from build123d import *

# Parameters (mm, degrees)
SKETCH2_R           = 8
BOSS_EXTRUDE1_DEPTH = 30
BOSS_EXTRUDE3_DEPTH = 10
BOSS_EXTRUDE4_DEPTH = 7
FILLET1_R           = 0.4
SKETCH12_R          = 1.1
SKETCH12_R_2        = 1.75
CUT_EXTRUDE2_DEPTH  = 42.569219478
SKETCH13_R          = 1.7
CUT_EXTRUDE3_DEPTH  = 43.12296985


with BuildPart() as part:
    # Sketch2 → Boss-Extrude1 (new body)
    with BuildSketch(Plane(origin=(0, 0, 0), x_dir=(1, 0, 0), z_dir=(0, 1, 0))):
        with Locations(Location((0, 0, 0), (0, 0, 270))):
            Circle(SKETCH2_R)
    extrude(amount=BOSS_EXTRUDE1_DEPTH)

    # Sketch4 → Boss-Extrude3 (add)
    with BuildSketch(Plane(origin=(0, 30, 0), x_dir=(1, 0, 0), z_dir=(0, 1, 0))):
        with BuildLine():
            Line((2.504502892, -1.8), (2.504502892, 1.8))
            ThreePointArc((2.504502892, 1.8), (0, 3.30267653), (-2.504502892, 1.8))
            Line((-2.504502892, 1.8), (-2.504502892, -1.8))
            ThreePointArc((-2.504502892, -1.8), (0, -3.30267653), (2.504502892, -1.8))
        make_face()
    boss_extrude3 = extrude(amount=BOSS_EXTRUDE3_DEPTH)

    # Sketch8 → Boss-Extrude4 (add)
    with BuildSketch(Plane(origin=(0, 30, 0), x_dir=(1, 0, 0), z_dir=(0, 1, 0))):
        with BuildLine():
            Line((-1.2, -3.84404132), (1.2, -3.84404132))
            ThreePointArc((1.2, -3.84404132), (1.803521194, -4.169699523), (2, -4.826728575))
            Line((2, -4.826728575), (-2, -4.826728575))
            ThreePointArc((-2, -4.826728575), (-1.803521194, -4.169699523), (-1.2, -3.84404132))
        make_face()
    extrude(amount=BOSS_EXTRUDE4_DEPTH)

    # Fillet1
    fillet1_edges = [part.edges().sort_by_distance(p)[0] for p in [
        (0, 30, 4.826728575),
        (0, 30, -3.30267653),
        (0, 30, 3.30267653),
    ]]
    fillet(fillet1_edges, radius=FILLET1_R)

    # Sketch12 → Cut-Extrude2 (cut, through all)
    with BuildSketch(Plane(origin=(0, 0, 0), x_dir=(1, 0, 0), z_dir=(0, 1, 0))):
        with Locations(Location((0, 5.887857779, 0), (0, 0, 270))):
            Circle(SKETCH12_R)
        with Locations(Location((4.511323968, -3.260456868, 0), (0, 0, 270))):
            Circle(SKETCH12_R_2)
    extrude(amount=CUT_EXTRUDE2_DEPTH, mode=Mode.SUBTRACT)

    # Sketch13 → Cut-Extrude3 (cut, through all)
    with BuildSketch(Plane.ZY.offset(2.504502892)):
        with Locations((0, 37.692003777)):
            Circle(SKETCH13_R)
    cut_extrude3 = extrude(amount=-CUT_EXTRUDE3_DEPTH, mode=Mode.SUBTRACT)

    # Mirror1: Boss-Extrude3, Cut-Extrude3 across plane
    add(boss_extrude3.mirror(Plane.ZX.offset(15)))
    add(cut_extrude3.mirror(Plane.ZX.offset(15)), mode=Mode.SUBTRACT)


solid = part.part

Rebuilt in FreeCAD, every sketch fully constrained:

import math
import FreeCAD as App
import Part
import Sketcher
Q = App.Units.Quantity


def edges_at(feature, points):
    """Names of the edges that pass closest to the given points."""
    edges = feature.Shape.Edges
    near = lambda p: min(range(len(edges)), key=lambda i: edges[i].distToShape(Part.Vertex(*p))[0])
    return sorted({f"Edge{near(p) + 1}" for p in points})

doc = App.newDocument("Part")
body = doc.addObject("PartDesign::Body", "Body")

sketch1 = doc.addObject("Sketcher::SketchObject", "Sketch")
body.addObject(sketch1)
sketch1.AttachmentSupport = (doc.XZ_Plane, [""])
sketch1.MapMode = "FlatFace"
sketch1.addGeometry(Part.Circle(App.Vector(0, 0, 0), App.Vector(0, 0, 1), 8), False)
sketch1.addConstraint([
    Sketcher.Constraint("Coincident", 0, 3, -1, 1),
    Sketcher.Constraint("Diameter", 0, Q("16 mm")),
])
pad1 = doc.addObject("PartDesign::Pad", "Pad")
body.addObject(pad1)
pad1.Profile = sketch1
pad1.Length = 30
pad1.Reversed = True

sketch2 = doc.addObject("Sketcher::SketchObject", "Sketch001")
body.addObject(sketch2)
sketch2.AttachmentSupport = (doc.XZ_Plane, [""])
sketch2.MapMode = "FlatFace"
sketch2.AttachmentOffset = App.Placement(App.Vector(0, 0, -30), App.Rotation())
sketch2.addGeometry([
    Part.LineSegment(App.Vector(2.5, 1.8, 0), App.Vector(2.5, -1.8, 0)),
    Part.ArcOfCircle(Part.Circle(App.Vector(0, -0.5, 0), App.Vector(0, 0, 1), 2.8), math.radians(-152), math.radians(-28)),
    Part.LineSegment(App.Vector(-2.5, -1.8, 0), App.Vector(-2.5, 1.8, 0)),
    Part.ArcOfCircle(Part.Circle(App.Vector(0, 0.5, 0), App.Vector(0, 0, 1), 2.8), math.radians(28), math.radians(152)),
], False)
sketch2.addConstraint([
    Sketcher.Constraint("Coincident", 0, 2, 1, 2),
    Sketcher.Constraint("Coincident", 1, 1, 2, 1),
    Sketcher.Constraint("Coincident", 2, 2, 3, 2),
    Sketcher.Constraint("Coincident", 3, 1, 0, 1),
    Sketcher.Constraint("Vertical", 0),
    Sketcher.Constraint("Vertical", 2),
    Sketcher.Constraint("Equal", 1, 3),
    Sketcher.Constraint("Symmetric", 1, 3, 3, 3, -1, 1),
    Sketcher.Constraint("Symmetric", 0, 2, 1, 1, -2),
    Sketcher.Constraint("DistanceY", 0, 2, 0, 1, Q("3.6 mm")),
    Sketcher.Constraint("Radius", 1, Q("2.838459 mm")),
    Sketcher.Constraint("DistanceY", 1, 3, -1, 1, Q("0.464218 mm")),
])
pad2 = doc.addObject("PartDesign::Pad", "Pad001")
body.addObject(pad2)
pad2.Profile = sketch2
pad2.Length = 10
pad2.Reversed = True

sketch3 = doc.addObject("Sketcher::SketchObject", "Sketch002")
body.addObject(sketch3)
sketch3.AttachmentSupport = (doc.XZ_Plane, [""])
sketch3.MapMode = "FlatFace"
sketch3.AttachmentOffset = App.Placement(App.Vector(0, 0, -30), App.Rotation())
sketch3.addGeometry([
    Part.LineSegment(App.Vector(1.2, 3.8, 0), App.Vector(-1.2, 3.8, 0)),
    Part.ArcOfCircle(Part.Circle(App.Vector(-1.1, 4.7, 0), App.Vector(0, 0, 1), 0.9), math.radians(174), math.radians(264)),
    Part.LineSegment(App.Vector(-2, 4.8, 0), App.Vector(2, 4.8, 0)),
    Part.ArcOfCircle(Part.Circle(App.Vector(1.1, 4.7, 0), App.Vector(0, 0, 1), 0.9), math.radians(-84), math.radians(6)),
], False)
sketch3.addConstraint([
    Sketcher.Constraint("Coincident", 0, 2, 1, 2),
    Sketcher.Constraint("Coincident", 1, 1, 2, 1),
    Sketcher.Constraint("Coincident", 2, 2, 3, 2),
    Sketcher.Constraint("Coincident", 3, 1, 0, 1),
    Sketcher.Constraint("Horizontal", 0),
    Sketcher.Constraint("Horizontal", 2),
    Sketcher.Constraint("Equal", 1, 3),
    Sketcher.Constraint("Symmetric", 1, 3, 3, 3, -2),
    Sketcher.Constraint("DistanceX", 2, 1, 2, 2, Q("4 mm")),
    Sketcher.Constraint("DistanceX", 0, 2, 0, 1, Q("2.4 mm")),
    Sketcher.Constraint("Radius", 1, Q("0.896012 mm")),
    Sketcher.Constraint("DistanceY", -1, 1, 0, 2, Q("3.844041 mm")),
    Sketcher.Constraint("DistanceY", -1, 1, 1, 1, Q("4.826729 mm")),
])
pad3 = doc.addObject("PartDesign::Pad", "Pad002")
body.addObject(pad3)
pad3.Profile = sketch3
pad3.Length = 7
pad3.Reversed = True
doc.recompute()

fillet = doc.addObject("PartDesign::Fillet", "Fillet")
body.addObject(fillet)
fillet.Base = (pad3, edges_at(pad3, [(0, 30, 4.827), (0, 30, -3.303), (0, 30, 3.303)]))
fillet.Radius = 0.4

sketch4 = doc.addObject("Sketcher::SketchObject", "Sketch003")
body.addObject(sketch4)
sketch4.AttachmentSupport = (doc.XZ_Plane, [""])
sketch4.MapMode = "FlatFace"
sketch4.addGeometry([
    Part.Circle(App.Vector(0, -5.9, 0), App.Vector(0, 0, 1), 1.1),
    Part.Circle(App.Vector(4.5, 3.3, 0), App.Vector(0, 0, 1), 1.8),
], False)
sketch4.addConstraint([
    Sketcher.Constraint("PointOnObject", 0, 3, -2),
    Sketcher.Constraint("Diameter", 0, Q("2.2 mm")),
    Sketcher.Constraint("Diameter", 1, Q("3.5 mm")),
    Sketcher.Constraint("DistanceY", 0, 3, -1, 1, Q("5.887858 mm")),
    Sketcher.Constraint("DistanceX", -1, 1, 1, 3, Q("4.511324 mm")),
    Sketcher.Constraint("DistanceY", -1, 1, 1, 3, Q("3.260457 mm")),
])
pocket1 = doc.addObject("PartDesign::Pocket", "Pocket")
body.addObject(pocket1)
pocket1.Profile = sketch4
pocket1.Type = "ThroughAll"

sketch5 = doc.addObject("Sketcher::SketchObject", "Sketch004")
body.addObject(sketch5)
sketch5.AttachmentSupport = (doc.YZ_Plane, [""])
sketch5.MapMode = "FlatFace"
sketch5.AttachmentOffset = App.Placement(App.Vector(0, 0, -2.504503), App.Rotation())
sketch5.addGeometry(Part.Circle(App.Vector(37.7, 0, 0), App.Vector(0, 0, 1), 1.7), False)
sketch5.addConstraint([
    Sketcher.Constraint("PointOnObject", 0, 3, -1),
    Sketcher.Constraint("Diameter", 0, Q("3.4 mm")),
    Sketcher.Constraint("DistanceX", -1, 1, 0, 3, Q("37.692004 mm")),
])
pocket2 = doc.addObject("PartDesign::Pocket", "Pocket001")
body.addObject(pocket2)
pocket2.Profile = sketch5
pocket2.Type = "ThroughAll"
pocket2.Reversed = True
doc.recompute()

datumplane = doc.addObject("PartDesign::Plane", "DatumPlane")
body.addObject(datumplane)
datumplane.AttachmentSupport = (doc.XZ_Plane, [""])
datumplane.MapMode = "FlatFace"
datumplane.AttachmentOffset = App.Placement(App.Vector(0, 0, -15), App.Rotation())
mirrored = doc.addObject("PartDesign::Mirrored", "Mirrored")
body.addObject(mirrored)
mirrored.Originals = [pad2, pocket2]
mirrored.MirrorPlane = (datumplane, [""])
body.Tip = mirrored

doc.recompute()
